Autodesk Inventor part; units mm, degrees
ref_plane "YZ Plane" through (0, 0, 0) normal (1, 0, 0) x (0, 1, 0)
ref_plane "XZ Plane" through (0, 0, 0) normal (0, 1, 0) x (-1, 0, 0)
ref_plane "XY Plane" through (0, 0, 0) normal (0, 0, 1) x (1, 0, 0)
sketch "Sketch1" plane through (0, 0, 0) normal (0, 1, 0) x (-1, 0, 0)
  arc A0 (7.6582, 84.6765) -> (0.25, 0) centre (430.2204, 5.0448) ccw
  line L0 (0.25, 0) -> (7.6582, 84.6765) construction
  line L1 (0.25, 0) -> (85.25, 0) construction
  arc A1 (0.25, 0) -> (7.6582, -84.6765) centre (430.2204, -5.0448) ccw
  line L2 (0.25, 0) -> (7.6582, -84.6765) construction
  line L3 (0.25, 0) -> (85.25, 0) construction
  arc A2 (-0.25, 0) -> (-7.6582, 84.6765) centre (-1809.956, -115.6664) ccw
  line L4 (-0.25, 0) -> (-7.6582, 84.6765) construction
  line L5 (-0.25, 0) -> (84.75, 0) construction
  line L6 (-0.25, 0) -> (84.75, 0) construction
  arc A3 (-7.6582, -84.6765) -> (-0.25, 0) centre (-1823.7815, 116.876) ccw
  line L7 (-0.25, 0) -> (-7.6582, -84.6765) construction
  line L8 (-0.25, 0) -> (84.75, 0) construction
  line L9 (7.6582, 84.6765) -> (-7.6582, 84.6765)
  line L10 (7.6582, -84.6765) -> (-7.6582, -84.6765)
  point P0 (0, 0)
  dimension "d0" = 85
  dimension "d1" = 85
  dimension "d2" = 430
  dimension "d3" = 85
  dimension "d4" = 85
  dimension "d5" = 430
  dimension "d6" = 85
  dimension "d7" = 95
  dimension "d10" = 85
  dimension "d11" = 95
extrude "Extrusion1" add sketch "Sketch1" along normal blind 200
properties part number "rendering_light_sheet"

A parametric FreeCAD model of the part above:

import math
import FreeCAD as App
import Part
import Sketcher
Q = App.Units.Quantity

doc = App.newDocument("Part")
body = doc.addObject("PartDesign::Body", "Body")

# Sketch on XZ plane
sketch1 = body.newObject("Sketcher::SketchObject", "Sketch")
sketch1.AttachmentSupport = (doc.getObject("XZ_Plane"), [""])
sketch1.MapMode = "FlatFace"
sketch1.addGeometry([
    Part.ArcOfCircle(Part.Circle(App.Vector(-430, 5, 0), App.Vector(0, 0, 1), 430), math.radians(-0.67), math.radians(10.67)),  # 0
    Part.LineSegment(App.Vector(-8, 85, 0), App.Vector(8, 85, 0)),  # 1
    Part.ArcOfCircle(Part.Circle(App.Vector(1810, -116, 0), App.Vector(0, 0, 1), 1813), math.radians(173.66), math.radians(176.34)),  # 2
    Part.ArcOfCircle(Part.Circle(App.Vector(1824, 117, 0), App.Vector(0, 0, 1), 1827), math.radians(-176.33), math.radians(-173.67)),  # 3
    Part.LineSegment(App.Vector(8, -85, 0), App.Vector(-8, -85, 0)),  # 4
    Part.ArcOfCircle(Part.Circle(App.Vector(-430, -5, 0), App.Vector(0, 0, 1), 430), math.radians(-10.67), math.radians(0.67)),  # 5
], False)
sketch1.addConstraint([
    Sketcher.Constraint("Coincident", 0, 2, 1, 1),
    Sketcher.Constraint("Coincident", 1, 2, 2, 1),
    Sketcher.Constraint("Coincident", 2, 2, 3, 1),
    Sketcher.Constraint("Coincident", 3, 2, 4, 1),
    Sketcher.Constraint("Coincident", 4, 2, 5, 1),
    Sketcher.Constraint("Coincident", 5, 2, 0, 1),
    Sketcher.Constraint("Horizontal", 1),
    Sketcher.Constraint("Horizontal", 4),
    Sketcher.Constraint("Symmetric", 1, 2, 4, 2, -1, 1),
    Sketcher.Constraint("Symmetric", 2, 2, 5, 2, -1, 1),
    Sketcher.Constraint("PointOnObject", 5, 2, -1),
    Sketcher.Constraint("Vertical", 0, 2, 4, 2),
    Sketcher.Constraint("Equal", 1, 4),
    Sketcher.Constraint("Radius", 3, Q("71.9375 in")),
    Sketcher.Constraint("DistanceX", 1, 1, 1, 2, Q("0.603 in")),
    Sketcher.Constraint("Radius", 0, Q("429.997 mm")),
    Sketcher.Constraint("Radius", 2, Q("1813.4563 mm")),
    Sketcher.Constraint("Radius", 5, Q("430.003 mm")),
    Sketcher.Constraint("DistanceX", 0, 3, -1, 1, Q("16.9377 in")),
    Sketcher.Constraint("DistanceY", 5, 3, -1, 1, Q("0.1986 in")),
])
pad1 = body.newObject("PartDesign::Pad", "Pad")
pad1.Profile = sketch1
pad1.Length = 200
pad1.Reversed = True

doc.recompute()
